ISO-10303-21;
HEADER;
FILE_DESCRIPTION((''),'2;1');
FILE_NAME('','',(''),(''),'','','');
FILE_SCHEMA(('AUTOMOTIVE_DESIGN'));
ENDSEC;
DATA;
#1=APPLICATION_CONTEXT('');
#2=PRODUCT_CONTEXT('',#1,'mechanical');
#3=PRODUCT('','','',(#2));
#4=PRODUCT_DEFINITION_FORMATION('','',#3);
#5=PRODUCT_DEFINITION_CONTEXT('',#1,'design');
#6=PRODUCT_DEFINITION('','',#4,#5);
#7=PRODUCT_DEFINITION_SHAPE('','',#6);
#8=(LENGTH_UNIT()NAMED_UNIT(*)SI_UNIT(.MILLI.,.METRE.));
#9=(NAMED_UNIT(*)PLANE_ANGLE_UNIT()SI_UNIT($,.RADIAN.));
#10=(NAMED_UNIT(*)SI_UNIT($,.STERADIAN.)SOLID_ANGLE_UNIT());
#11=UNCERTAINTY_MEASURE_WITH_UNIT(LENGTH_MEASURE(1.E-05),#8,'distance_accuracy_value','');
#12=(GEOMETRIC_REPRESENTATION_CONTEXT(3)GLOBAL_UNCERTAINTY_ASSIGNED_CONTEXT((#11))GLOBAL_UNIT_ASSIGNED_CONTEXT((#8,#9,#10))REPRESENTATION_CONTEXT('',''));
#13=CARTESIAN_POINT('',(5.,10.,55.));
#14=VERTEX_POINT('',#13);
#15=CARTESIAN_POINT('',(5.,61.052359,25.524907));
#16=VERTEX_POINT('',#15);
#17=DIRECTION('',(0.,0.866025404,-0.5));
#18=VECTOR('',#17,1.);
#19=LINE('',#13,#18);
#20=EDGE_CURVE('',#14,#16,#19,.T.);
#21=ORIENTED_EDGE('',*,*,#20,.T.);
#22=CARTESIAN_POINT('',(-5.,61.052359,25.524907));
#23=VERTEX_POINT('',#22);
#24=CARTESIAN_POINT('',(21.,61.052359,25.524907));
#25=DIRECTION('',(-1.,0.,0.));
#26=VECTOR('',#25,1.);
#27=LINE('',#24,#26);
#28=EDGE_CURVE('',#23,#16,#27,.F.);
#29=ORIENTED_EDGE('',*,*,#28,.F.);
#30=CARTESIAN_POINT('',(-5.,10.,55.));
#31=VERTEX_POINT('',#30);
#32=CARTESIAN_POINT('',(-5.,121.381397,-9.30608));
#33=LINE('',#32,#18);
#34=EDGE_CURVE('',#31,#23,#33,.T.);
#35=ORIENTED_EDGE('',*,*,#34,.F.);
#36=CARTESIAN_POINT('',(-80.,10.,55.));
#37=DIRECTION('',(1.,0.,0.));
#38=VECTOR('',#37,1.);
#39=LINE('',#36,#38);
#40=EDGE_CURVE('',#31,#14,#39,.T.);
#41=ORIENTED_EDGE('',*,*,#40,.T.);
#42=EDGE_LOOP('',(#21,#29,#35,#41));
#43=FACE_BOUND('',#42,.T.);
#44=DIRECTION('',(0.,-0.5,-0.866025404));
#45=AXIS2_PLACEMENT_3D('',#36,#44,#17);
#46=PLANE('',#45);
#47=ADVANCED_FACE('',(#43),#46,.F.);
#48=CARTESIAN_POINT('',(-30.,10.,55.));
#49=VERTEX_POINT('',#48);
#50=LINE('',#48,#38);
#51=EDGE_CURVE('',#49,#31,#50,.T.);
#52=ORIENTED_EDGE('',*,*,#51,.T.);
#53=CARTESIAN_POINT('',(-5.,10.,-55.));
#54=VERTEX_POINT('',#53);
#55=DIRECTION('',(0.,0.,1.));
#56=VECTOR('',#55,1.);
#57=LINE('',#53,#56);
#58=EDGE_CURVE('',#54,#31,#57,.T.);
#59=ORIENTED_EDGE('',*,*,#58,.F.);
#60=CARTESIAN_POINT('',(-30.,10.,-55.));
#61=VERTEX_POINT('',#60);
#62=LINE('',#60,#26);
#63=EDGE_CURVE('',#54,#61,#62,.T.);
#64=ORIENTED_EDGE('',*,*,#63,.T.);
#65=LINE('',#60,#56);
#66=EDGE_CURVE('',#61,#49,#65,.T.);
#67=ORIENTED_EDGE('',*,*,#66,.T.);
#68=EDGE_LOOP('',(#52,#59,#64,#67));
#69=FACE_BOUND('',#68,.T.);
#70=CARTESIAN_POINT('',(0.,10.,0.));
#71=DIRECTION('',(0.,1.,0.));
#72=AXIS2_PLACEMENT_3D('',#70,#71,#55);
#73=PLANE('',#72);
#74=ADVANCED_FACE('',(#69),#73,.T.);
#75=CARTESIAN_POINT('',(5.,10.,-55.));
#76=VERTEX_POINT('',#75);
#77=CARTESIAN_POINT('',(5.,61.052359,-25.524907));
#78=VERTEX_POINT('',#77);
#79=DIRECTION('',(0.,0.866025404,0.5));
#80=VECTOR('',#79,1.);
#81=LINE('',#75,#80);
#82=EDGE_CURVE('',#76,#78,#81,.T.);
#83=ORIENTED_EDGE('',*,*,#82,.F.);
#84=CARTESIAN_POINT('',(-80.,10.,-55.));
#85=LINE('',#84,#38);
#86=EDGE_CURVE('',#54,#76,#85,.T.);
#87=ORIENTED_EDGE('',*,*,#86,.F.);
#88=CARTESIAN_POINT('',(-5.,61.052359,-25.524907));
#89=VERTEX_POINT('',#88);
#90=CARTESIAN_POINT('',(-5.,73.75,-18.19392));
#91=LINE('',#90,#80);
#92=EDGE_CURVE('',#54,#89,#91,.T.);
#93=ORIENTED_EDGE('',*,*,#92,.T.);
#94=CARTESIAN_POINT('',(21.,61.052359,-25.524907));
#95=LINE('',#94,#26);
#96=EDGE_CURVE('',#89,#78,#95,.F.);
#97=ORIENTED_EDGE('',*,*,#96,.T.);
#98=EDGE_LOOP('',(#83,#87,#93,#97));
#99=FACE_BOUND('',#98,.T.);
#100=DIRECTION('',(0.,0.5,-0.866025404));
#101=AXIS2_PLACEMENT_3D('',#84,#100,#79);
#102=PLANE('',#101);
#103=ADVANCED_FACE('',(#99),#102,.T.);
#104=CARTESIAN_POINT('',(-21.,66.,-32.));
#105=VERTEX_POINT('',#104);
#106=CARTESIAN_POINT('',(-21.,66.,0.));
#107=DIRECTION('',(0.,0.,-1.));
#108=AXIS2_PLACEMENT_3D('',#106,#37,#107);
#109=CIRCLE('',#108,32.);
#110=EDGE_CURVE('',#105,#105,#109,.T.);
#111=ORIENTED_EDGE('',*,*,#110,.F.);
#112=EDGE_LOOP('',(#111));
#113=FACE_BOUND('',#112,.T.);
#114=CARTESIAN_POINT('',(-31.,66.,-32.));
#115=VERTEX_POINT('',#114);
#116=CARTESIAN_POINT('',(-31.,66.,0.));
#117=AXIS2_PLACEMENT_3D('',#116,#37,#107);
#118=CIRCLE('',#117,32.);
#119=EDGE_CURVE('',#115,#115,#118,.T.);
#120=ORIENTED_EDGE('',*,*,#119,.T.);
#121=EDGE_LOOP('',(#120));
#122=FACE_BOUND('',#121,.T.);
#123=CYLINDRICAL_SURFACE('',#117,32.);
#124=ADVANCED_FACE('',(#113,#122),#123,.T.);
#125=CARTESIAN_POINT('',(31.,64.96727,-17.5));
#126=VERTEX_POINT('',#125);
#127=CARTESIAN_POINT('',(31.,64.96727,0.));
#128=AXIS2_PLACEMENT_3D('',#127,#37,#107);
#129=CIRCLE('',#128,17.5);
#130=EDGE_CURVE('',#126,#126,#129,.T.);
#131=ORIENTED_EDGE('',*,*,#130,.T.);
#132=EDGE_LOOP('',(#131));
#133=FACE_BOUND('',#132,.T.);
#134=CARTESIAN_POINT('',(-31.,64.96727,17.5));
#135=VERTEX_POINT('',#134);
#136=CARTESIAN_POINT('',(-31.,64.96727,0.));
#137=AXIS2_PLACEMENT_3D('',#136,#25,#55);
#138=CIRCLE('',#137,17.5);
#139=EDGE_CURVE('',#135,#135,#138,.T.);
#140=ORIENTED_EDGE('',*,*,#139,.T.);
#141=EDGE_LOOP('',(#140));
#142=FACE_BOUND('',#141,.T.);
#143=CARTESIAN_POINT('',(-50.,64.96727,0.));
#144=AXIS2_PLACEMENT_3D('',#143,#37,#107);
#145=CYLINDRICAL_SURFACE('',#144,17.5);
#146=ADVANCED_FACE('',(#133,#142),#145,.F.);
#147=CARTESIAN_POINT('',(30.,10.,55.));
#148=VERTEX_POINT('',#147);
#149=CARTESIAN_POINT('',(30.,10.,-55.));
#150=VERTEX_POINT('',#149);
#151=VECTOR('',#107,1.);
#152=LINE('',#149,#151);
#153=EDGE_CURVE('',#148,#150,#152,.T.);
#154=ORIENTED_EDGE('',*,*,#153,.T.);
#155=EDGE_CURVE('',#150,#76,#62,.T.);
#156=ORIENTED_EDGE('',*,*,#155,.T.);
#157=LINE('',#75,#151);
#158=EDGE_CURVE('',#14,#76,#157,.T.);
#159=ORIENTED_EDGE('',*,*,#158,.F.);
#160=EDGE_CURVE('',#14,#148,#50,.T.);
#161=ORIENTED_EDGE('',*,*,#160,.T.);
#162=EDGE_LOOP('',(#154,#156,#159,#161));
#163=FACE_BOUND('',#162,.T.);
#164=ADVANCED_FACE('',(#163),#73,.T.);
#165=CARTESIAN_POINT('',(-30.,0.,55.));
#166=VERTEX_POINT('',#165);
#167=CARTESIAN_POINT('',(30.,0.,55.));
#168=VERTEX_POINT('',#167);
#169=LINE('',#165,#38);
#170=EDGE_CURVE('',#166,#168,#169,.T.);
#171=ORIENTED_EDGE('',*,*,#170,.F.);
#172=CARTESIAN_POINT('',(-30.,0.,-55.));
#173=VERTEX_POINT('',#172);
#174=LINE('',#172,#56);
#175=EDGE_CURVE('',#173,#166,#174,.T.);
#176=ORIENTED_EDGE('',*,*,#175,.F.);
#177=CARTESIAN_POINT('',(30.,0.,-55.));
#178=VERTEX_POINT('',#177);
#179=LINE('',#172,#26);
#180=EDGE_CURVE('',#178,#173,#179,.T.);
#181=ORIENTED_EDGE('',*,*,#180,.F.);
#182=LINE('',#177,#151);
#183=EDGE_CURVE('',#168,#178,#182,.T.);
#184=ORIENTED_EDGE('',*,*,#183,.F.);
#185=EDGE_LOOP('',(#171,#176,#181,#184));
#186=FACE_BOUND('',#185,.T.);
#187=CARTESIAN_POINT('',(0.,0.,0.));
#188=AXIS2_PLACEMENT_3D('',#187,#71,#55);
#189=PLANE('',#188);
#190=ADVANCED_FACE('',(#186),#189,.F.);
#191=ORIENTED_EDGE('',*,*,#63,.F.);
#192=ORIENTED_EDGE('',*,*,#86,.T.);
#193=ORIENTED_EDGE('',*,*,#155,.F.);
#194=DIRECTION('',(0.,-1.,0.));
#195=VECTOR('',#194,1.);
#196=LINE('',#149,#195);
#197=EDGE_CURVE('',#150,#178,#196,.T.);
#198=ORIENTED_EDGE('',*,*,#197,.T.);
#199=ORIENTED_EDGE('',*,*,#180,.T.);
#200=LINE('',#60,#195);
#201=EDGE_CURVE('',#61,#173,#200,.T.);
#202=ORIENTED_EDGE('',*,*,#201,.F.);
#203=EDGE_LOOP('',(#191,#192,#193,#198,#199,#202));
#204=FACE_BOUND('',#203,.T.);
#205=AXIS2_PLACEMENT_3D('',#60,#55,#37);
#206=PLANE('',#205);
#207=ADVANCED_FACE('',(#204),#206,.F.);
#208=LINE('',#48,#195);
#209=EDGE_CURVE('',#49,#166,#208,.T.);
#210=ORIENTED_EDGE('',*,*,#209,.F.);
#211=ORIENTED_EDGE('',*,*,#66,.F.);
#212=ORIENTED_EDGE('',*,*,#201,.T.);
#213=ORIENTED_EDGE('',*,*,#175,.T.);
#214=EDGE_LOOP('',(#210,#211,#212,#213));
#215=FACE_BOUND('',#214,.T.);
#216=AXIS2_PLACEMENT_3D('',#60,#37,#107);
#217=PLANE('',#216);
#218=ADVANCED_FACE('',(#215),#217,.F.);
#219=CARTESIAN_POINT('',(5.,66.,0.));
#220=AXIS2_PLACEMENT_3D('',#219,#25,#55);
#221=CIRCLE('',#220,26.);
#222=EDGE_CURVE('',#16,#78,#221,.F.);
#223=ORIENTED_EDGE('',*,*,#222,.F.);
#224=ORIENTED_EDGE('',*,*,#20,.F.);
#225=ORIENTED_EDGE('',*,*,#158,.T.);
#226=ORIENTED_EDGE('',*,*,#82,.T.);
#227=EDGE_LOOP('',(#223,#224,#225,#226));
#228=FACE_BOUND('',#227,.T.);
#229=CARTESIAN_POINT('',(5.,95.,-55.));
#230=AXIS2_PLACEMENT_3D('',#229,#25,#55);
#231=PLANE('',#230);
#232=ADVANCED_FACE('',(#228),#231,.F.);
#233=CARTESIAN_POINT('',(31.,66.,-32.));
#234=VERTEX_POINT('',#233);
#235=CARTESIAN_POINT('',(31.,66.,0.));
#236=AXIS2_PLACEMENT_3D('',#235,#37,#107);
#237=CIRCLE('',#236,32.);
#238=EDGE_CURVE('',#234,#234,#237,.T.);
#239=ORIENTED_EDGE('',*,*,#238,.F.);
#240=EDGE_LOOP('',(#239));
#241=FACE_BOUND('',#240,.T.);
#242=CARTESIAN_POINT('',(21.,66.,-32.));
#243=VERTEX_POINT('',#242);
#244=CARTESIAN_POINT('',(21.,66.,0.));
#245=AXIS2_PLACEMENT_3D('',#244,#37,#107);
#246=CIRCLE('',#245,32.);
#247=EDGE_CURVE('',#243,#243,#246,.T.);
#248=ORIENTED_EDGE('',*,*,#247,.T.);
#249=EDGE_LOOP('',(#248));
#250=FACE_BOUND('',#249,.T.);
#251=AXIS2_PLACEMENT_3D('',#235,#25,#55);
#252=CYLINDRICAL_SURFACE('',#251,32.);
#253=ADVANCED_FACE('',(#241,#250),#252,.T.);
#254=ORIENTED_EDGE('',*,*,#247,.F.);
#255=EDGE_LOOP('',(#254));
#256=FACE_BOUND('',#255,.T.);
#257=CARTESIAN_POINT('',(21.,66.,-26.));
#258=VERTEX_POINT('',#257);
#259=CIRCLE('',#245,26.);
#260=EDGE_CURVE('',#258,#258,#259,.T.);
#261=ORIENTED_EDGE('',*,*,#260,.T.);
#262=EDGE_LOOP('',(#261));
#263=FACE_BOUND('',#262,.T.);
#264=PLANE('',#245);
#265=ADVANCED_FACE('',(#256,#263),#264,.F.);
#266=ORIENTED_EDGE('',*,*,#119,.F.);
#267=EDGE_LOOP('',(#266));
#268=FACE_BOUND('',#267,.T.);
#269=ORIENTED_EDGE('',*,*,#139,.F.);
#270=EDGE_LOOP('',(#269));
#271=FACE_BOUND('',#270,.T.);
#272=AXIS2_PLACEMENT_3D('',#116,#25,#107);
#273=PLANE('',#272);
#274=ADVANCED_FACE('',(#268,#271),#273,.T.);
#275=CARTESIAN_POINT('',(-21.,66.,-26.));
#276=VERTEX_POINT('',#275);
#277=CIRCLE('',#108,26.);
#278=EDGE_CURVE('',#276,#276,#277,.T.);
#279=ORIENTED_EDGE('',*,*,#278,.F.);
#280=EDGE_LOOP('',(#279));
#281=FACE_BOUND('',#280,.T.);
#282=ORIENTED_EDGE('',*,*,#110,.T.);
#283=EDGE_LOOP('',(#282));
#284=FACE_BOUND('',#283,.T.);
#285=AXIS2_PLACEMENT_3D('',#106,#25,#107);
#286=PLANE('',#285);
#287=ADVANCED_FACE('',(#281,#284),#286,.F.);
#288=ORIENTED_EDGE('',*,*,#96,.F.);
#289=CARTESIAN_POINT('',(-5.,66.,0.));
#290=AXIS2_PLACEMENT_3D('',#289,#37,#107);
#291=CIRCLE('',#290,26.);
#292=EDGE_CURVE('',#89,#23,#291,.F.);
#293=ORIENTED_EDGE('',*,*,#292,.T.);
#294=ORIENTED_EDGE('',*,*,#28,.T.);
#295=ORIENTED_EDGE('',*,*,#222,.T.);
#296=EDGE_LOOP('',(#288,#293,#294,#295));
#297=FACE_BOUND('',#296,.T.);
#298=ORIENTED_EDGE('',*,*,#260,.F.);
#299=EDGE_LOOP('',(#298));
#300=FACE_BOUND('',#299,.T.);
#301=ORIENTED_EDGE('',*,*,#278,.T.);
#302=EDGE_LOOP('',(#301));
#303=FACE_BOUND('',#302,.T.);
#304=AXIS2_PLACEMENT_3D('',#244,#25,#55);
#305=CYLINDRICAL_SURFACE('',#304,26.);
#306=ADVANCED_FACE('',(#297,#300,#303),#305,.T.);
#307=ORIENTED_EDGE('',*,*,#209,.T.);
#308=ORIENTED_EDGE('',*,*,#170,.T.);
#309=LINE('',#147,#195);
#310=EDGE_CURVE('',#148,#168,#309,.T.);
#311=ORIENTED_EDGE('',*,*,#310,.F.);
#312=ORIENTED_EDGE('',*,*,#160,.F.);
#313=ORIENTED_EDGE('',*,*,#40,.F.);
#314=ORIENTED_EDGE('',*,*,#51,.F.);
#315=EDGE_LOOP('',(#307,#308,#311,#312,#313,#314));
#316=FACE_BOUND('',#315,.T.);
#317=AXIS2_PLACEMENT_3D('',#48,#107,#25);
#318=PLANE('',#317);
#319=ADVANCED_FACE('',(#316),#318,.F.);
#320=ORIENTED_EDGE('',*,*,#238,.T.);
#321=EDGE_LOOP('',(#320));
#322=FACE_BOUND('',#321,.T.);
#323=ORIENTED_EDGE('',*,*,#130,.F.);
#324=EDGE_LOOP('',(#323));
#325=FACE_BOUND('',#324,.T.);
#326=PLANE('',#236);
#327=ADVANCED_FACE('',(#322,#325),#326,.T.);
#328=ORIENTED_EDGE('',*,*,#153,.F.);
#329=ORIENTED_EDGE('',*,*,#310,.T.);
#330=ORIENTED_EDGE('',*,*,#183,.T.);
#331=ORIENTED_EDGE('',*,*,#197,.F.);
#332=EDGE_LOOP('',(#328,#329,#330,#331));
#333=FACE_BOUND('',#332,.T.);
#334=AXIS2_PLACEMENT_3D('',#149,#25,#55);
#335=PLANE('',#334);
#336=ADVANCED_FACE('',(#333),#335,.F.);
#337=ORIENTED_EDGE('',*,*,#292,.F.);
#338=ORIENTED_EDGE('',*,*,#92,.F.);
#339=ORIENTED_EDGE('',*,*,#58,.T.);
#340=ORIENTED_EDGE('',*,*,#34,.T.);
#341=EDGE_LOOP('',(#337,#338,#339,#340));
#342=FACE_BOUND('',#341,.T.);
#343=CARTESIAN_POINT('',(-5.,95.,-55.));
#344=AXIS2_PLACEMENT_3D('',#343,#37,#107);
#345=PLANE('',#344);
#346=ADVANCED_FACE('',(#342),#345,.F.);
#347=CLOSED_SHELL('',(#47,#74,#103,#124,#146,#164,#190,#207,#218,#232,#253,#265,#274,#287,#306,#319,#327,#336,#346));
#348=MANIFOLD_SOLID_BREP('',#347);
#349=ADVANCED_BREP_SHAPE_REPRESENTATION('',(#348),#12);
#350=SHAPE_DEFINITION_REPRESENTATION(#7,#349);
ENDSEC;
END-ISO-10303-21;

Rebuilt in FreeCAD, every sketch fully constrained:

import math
import FreeCAD as App
import Part
import Sketcher
Q = App.Units.Quantity


def add_polygon(sketch, points):
    """Adds a closed chain of lines whose ends are joined by coincident constraints."""
    first, n = sketch.GeometryCount, len(points)
    for a, b in zip(points, points[1:] + points[:1]):
        sketch.addGeometry(Part.LineSegment(App.Vector(*a, 0), App.Vector(*b, 0)), False)
    for i in range(n):
        sketch.addConstraint(Sketcher.Constraint("Coincident", first + i, 2, first + (i + 1) % n, 1))

doc = App.newDocument("Part")
body = doc.addObject("PartDesign::Body", "Body")

# Sketch on XZ plane
sketch1 = body.newObject("Sketcher::SketchObject", "Sketch")
sketch1.AttachmentSupport = (doc.getObject("XZ_Plane"), [""])
sketch1.MapMode = "FlatFace"
add_polygon(sketch1, [(-30, -55), (-30, 55), (30, 55), (30, -55)])  # lines 0-3
sketch1.addConstraint([
    Sketcher.Constraint("Vertical", 0),
    Sketcher.Constraint("Horizontal", 1),
    Sketcher.Constraint("Vertical", 2),
    Sketcher.Constraint("Horizontal", 3),
    Sketcher.Constraint("Symmetric", 0, 2, 2, 2, -1, 1),
    Sketcher.Constraint("DistanceX", 1, 1, 1, 2, Q("60 mm")),
    Sketcher.Constraint("DistanceY", 0, 1, 0, 2, Q("110 mm")),
])
pad1 = body.newObject("PartDesign::Pad", "Pad")
pad1.Profile = sketch1
pad1.Length = 10
pad1.Reversed = True

# Sketch on XZ plane
sketch2 = body.newObject("Sketcher::SketchObject", "Sketch001")
sketch2.AttachmentSupport = (doc.getObject("XZ_Plane"), [""])
sketch2.MapMode = "FlatFace"
sketch2.AttachmentOffset = App.Placement(App.Vector(0, 0, -10), App.Rotation())
add_polygon(sketch2, [(-5, -55), (-5, 55), (5, 55), (5, -55)])  # lines 0-3
sketch2.addConstraint([
    Sketcher.Constraint("Vertical", 0),
    Sketcher.Constraint("Horizontal", 1),
    Sketcher.Constraint("Vertical", 2),
    Sketcher.Constraint("Horizontal", 3),
    Sketcher.Constraint("Symmetric", 0, 2, 2, 2, -1, 1),
    Sketcher.Constraint("DistanceX", 1, 1, 1, 2, Q("10 mm")),
    Sketcher.Constraint("DistanceY", 0, 1, 0, 2, Q("110 mm")),
])
pad2 = body.newObject("PartDesign::Pad", "Pad001")
pad2.Profile = sketch2
pad2.Length = 85
pad2.Reversed = True

# Sketch on YZ plane
sketch3 = body.newObject("Sketcher::SketchObject", "Sketch002")
sketch3.AttachmentSupport = (doc.getObject("YZ_Plane"), [""])
sketch3.MapMode = "FlatFace"
sketch3.AttachmentOffset = App.Placement(App.Vector(0, 0, 5), App.Rotation())
add_polygon(sketch3, [(10, 55), (101.924708, 1.927245), (101.924708, 74.670847), (10, 74.670847)])  # lines 0-3
sketch3.addConstraint([
    Sketcher.Constraint("Vertical", 1),
    Sketcher.Constraint("Horizontal", 2),
    Sketcher.Constraint("Vertical", 3),
    Sketcher.Constraint("Angle", 0, Q("-30 deg")),
    Sketcher.Constraint("DistanceX", -1, 1, 2, 2, Q("10 mm")),
    Sketcher.Constraint("DistanceY", -1, 1, 3, 2, Q("55 mm")),
    Sketcher.Constraint("Distance", 0, Q("106.14551 mm")),
    Sketcher.Constraint("DistanceY", 1, 1, 1, 2, Q("72.743602 mm")),
])
pocket1 = body.newObject("PartDesign::Pocket", "Pocket")
pocket1.Profile = sketch3
pocket1.Length = 85
doc.recompute()

mirrored = body.newObject("PartDesign::Mirrored", "Mirrored")
mirrored.Originals = [pocket1]
mirrored.MirrorPlane = (doc.getObject("XY_Plane"), [""])
body.Tip = mirrored

# Sketch on YZ plane
sketch4 = body.newObject("Sketcher::SketchObject", "Sketch003")
sketch4.AttachmentSupport = (doc.getObject("YZ_Plane"), [""])
sketch4.MapMode = "FlatFace"
sketch4.addGeometry(Part.Circle(App.Vector(66, 0, 0), App.Vector(0, 0, 1), 26), False)
sketch4.addConstraint([
    Sketcher.Constraint("PointOnObject", 0, 3, -1),
    Sketcher.Constraint("Diameter", 0, Q("52 mm")),
    Sketcher.Constraint("DistanceX", -1, 1, 0, 3, Q("66 mm")),
])
pad3 = body.newObject("PartDesign::Pad", "Pad002")
pad3.Profile = sketch4
pad3.Length = 42
pad3.Midplane = True

# Sketch on YZ plane
sketch5 = body.newObject("Sketcher::SketchObject", "Sketch004")
sketch5.AttachmentSupport = (doc.getObject("YZ_Plane"), [""])
sketch5.MapMode = "FlatFace"
sketch5.AttachmentOffset = App.Placement(App.Vector(0, 0, 21), App.Rotation())
sketch5.addGeometry([
    Part.LineSegment(App.Vector(105.747158, 12.442891, 0), App.Vector(85.797109, 16.854509, 0)),
    Part.ArcOfCircle(Part.Circle(App.Vector(66, 0, 0), App.Vector(0, 0, 1), 26), math.radians(-50.37924), math.radians(40.409814)),
    Part.LineSegment(App.Vector(82.580281, -20.027338, 0), App.Vector(102.320855, -16.049527, 0)),
    Part.LineSegment(App.Vector(102.320855, -16.049527, 0), App.Vector(105.747158, 12.442891, 0)),
], False)
sketch5.addConstraint([
    Sketcher.Constraint("Coincident", 0, 2, 1, 2),
    Sketcher.Constraint("Coincident", 1, 1, 2, 1),
    Sketcher.Constraint("Coincident", 2, 2, 3, 1),
    Sketcher.Constraint("Coincident", 3, 2, 0, 1),
    Sketcher.Constraint("PointOnObject", 1, 3, -1),
    Sketcher.Constraint("Radius", 1, Q("26 mm")),
    Sketcher.Constraint("DistanceX", -1, 1, 1, 3, Q("66 mm")),
    Sketcher.Constraint("Distance", 2, Q("20.137359 mm")),
    Sketcher.Constraint("Distance", 3, Q("28.69769 mm")),
    Sketcher.Constraint("DistanceX", -1, 1, 0, 2, Q("85.797109 mm")),
    Sketcher.Constraint("DistanceX", -1, 1, 1, 1, Q("82.580281 mm")),
    Sketcher.Constraint("DistanceX", -1, 1, 3, 2, Q("105.747158 mm")),
    Sketcher.Constraint("DistanceY", -1, 1, 3, 2, Q("12.442891 mm")),
])
pocket2 = body.newObject("PartDesign::Pocket", "Pocket001")
pocket2.Profile = sketch5
pocket2.Length = 42

# Sketch on YZ plane
sketch6 = body.newObject("Sketcher::SketchObject", "Sketch005")
sketch6.AttachmentSupport = (doc.getObject("YZ_Plane"), [""])
sketch6.MapMode = "FlatFace"
sketch6.AttachmentOffset = App.Placement(App.Vector(0, 0, 21), App.Rotation())
sketch6.addGeometry(Part.Circle(App.Vector(66, 0, 0), App.Vector(0, 0, 1), 32), False)
sketch6.addConstraint([
    Sketcher.Constraint("PointOnObject", 0, 3, -1),
    Sketcher.Constraint("Diameter", 0, Q("64 mm")),
    Sketcher.Constraint("DistanceX", -1, 1, 0, 3, Q("66 mm")),
])
pad4 = body.newObject("PartDesign::Pad", "Pad003")
pad4.Profile = sketch6
pad4.Length = 10
doc.recompute()

mirrored2 = body.newObject("PartDesign::Mirrored", "Mirrored001")
mirrored2.Originals = [pad4]
mirrored2.MirrorPlane = (doc.getObject("YZ_Plane"), [""])
body.Tip = mirrored2

# Sketch on YZ plane
sketch7 = body.newObject("Sketcher::SketchObject", "Sketch006")
sketch7.AttachmentSupport = (doc.getObject("YZ_Plane"), [""])
sketch7.MapMode = "FlatFace"
sketch7.AttachmentOffset = App.Placement(App.Vector(0, 0, 31), App.Rotation())
sketch7.addGeometry(Part.Circle(App.Vector(64.96727, 0, 0), App.Vector(0, 0, 1), 17.5), False)
sketch7.addConstraint([
    Sketcher.Constraint("PointOnObject", 0, 3, -1),
    Sketcher.Constraint("Diameter", 0, Q("35 mm")),
    Sketcher.Constraint("DistanceX", -1, 1, 0, 3, Q("64.96727 mm")),
])
pocket3 = body.newObject("PartDesign::Pocket", "Pocket002")
pocket3.Profile = sketch7
pocket3.Length = 81

doc.recompute()
